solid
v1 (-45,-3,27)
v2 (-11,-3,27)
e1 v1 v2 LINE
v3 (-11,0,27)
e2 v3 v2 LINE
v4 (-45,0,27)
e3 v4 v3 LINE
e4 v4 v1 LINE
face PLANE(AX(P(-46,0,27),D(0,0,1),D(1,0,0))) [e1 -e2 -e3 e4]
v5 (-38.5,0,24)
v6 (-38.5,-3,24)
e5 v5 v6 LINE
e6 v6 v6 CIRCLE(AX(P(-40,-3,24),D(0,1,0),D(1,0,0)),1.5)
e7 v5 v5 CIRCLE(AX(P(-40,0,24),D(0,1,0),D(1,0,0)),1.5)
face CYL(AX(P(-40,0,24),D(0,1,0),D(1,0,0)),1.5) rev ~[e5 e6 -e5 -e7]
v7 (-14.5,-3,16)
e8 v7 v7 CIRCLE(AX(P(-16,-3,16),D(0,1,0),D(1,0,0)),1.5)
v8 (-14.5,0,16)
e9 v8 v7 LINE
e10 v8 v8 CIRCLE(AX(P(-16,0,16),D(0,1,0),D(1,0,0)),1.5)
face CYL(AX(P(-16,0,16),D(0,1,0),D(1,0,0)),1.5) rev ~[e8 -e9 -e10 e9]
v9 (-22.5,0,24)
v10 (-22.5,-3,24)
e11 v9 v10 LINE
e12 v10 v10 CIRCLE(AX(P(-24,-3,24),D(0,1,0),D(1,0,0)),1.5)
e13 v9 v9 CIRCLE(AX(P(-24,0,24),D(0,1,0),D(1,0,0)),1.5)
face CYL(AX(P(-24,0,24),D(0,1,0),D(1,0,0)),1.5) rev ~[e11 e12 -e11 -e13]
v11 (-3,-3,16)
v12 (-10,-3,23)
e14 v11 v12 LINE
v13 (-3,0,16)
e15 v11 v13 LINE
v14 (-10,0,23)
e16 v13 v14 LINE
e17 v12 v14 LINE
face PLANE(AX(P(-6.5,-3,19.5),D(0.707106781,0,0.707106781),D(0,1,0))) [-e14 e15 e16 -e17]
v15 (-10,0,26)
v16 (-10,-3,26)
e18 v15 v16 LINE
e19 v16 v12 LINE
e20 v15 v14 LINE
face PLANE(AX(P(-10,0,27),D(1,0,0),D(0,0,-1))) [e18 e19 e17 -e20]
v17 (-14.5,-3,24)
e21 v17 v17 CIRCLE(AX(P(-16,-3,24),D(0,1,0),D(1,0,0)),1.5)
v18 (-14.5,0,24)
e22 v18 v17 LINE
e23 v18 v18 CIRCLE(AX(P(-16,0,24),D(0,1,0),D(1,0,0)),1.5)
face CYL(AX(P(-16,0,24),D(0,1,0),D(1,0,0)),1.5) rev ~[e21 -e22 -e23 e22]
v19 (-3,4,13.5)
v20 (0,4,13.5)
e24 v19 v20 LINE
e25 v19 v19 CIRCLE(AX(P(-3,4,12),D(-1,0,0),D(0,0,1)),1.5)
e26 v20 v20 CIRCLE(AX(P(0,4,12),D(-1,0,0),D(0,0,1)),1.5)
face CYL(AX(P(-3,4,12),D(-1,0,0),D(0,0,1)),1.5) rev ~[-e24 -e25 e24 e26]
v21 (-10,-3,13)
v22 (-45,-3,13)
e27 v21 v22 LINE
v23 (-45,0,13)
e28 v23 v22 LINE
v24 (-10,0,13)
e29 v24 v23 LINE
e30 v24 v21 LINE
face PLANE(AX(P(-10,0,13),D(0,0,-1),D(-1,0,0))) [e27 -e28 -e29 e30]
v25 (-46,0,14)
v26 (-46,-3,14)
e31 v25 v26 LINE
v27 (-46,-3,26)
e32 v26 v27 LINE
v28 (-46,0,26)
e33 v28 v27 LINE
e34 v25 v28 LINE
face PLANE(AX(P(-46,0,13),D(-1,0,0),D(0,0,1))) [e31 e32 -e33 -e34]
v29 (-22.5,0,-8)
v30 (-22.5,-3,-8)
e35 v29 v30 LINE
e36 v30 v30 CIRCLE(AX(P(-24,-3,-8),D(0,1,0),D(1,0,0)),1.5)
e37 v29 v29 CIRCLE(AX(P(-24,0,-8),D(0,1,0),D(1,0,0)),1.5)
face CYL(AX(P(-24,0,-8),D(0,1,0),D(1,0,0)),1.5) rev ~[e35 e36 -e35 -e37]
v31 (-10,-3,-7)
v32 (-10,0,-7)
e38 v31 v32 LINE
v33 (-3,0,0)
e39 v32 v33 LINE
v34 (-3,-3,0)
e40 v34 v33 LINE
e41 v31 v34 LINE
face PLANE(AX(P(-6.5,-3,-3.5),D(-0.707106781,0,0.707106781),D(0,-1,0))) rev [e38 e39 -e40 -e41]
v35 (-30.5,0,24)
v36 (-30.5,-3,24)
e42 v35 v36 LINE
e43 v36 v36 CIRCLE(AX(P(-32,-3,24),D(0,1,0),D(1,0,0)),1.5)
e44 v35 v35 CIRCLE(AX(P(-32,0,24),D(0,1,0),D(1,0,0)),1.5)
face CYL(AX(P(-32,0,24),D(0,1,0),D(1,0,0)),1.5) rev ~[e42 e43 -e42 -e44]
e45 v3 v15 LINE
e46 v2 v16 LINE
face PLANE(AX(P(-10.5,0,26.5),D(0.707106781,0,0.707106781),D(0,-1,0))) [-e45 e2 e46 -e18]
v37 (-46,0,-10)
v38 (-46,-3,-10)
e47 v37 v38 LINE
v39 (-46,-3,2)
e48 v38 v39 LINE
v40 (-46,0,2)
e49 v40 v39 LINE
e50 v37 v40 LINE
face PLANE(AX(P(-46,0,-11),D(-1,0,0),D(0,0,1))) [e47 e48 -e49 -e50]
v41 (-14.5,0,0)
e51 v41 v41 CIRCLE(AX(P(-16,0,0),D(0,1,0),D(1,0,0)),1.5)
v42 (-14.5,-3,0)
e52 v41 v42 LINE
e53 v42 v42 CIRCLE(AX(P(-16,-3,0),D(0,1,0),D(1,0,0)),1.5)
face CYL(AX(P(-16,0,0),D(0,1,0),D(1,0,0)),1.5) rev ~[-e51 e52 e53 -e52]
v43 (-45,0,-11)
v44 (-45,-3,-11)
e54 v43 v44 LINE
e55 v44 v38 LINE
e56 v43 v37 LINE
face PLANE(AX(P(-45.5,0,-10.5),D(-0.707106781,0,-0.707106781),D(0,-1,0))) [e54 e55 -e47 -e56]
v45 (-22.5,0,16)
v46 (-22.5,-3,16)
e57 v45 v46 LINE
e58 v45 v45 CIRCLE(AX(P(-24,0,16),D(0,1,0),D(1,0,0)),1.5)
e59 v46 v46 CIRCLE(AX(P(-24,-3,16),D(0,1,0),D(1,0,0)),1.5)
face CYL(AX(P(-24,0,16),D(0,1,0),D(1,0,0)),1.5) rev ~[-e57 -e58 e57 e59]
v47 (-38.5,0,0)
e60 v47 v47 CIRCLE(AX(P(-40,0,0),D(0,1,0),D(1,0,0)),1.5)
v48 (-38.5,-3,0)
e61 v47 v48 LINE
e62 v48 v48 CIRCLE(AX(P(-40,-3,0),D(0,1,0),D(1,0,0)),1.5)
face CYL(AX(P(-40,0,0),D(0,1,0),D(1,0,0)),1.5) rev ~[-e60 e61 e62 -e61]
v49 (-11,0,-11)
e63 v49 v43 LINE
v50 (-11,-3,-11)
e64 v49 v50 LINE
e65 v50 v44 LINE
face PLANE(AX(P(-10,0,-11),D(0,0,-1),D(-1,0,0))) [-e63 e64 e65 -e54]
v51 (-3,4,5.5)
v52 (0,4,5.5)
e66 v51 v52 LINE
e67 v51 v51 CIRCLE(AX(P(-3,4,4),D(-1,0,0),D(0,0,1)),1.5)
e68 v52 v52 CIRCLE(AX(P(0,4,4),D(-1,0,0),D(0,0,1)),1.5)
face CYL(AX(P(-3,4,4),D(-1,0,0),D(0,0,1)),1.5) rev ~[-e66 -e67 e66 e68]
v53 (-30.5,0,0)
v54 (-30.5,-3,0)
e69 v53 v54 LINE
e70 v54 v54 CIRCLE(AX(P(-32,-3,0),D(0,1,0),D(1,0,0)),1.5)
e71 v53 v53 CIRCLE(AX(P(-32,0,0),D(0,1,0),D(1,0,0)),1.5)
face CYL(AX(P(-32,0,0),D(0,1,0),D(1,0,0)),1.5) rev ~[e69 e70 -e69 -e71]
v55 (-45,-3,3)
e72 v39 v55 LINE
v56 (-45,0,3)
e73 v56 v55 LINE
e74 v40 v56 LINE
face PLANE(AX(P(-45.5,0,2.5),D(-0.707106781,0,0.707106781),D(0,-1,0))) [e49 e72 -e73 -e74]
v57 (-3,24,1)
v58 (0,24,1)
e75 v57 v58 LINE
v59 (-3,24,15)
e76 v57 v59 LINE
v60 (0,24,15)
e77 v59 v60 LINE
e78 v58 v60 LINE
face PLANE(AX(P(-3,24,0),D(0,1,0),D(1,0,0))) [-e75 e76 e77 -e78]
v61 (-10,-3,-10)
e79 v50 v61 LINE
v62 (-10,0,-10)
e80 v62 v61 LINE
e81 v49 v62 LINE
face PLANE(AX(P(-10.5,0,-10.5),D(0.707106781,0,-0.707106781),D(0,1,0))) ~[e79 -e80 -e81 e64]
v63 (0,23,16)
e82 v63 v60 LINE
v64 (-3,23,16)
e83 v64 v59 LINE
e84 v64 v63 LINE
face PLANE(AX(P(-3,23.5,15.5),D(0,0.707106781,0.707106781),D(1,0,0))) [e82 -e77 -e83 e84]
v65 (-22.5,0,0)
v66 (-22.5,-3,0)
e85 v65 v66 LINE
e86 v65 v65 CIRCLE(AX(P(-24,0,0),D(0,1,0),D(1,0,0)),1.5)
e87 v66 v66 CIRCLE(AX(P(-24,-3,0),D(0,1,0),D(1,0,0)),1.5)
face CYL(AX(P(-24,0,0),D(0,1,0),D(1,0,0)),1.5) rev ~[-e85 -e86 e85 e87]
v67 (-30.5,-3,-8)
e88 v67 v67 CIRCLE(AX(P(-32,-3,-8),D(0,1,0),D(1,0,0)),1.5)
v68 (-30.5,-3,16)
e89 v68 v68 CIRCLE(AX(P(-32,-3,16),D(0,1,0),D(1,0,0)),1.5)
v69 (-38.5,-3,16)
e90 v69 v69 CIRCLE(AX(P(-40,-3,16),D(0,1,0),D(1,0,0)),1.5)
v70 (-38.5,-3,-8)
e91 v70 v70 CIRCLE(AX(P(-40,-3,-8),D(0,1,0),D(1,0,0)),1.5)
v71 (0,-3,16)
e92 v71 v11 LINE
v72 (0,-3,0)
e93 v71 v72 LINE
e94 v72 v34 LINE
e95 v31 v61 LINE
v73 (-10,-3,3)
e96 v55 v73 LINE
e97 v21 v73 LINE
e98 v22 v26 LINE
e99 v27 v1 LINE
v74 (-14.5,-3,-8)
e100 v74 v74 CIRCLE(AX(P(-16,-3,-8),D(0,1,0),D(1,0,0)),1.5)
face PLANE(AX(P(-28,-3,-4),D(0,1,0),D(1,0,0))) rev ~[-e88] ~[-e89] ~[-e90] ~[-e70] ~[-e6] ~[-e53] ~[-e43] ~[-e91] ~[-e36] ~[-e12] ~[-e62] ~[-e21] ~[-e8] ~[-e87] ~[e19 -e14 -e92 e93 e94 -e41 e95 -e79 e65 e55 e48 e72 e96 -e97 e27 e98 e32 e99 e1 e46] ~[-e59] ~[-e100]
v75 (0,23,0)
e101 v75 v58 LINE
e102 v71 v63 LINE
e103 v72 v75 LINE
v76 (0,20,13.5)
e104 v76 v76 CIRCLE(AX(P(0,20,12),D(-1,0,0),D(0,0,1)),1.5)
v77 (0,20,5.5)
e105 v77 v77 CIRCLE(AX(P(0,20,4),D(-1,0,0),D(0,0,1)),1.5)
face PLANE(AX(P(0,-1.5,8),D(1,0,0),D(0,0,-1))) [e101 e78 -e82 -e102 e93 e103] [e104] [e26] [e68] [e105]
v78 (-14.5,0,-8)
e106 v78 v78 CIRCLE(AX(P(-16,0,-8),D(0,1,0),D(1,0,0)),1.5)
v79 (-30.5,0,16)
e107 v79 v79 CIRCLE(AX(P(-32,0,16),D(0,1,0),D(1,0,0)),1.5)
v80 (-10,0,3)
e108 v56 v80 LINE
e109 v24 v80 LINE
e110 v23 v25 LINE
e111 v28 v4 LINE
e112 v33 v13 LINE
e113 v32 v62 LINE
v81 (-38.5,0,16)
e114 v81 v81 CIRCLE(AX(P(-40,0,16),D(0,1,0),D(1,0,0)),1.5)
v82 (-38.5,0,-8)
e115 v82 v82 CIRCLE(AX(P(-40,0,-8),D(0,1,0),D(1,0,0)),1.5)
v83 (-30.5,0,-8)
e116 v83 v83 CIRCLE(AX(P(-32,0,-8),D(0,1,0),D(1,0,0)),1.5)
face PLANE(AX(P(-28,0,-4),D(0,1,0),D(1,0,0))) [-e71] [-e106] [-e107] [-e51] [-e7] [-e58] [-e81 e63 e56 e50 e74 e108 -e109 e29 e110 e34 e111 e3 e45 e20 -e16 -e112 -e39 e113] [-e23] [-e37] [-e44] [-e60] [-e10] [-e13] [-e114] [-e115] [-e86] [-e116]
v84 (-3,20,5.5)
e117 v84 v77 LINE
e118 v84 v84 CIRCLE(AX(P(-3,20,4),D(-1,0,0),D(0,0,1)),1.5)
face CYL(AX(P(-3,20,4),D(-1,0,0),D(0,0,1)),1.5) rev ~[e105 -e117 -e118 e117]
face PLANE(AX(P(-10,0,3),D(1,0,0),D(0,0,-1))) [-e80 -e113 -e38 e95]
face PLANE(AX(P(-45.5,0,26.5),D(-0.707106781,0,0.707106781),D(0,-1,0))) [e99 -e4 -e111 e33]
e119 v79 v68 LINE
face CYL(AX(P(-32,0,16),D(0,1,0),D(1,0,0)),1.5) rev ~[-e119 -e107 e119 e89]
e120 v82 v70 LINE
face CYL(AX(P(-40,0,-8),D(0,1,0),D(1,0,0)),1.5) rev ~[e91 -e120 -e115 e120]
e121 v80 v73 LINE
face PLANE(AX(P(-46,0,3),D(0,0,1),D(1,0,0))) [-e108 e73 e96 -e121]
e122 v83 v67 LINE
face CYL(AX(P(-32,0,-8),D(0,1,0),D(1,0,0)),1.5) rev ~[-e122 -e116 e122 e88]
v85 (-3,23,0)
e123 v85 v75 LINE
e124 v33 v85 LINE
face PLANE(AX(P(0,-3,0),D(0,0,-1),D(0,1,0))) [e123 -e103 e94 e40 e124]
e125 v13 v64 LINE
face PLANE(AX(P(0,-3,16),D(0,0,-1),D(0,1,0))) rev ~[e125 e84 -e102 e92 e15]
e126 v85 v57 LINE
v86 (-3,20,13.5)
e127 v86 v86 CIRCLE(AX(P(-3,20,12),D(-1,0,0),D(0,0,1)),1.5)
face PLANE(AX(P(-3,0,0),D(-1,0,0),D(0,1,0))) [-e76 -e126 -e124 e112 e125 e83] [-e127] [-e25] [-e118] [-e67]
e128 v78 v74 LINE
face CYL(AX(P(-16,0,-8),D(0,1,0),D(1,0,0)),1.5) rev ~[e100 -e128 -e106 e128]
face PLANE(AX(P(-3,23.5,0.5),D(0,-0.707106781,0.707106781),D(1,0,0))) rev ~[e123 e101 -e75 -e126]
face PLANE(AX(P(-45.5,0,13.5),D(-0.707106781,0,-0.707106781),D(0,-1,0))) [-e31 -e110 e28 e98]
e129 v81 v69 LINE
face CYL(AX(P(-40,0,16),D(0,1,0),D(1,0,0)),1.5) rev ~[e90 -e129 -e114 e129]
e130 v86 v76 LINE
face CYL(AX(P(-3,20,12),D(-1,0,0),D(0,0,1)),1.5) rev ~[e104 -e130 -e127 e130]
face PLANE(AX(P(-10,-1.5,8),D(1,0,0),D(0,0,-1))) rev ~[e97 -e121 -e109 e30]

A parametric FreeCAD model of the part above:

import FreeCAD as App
import Part
import Sketcher


def edges_at(feature, points):
    """Names of the edges that pass closest to the given points."""
    edges = feature.Shape.Edges
    near = lambda p: min(range(len(edges)), key=lambda i: edges[i].distToShape(Part.Vertex(*p))[0])
    return sorted({f"Edge{near(p) + 1}" for p in points})


def add_polygon(sketch, points):
    """Adds a closed chain of lines whose ends are joined by coincident constraints."""
    first, n = sketch.GeometryCount, len(points)
    for a, b in zip(points, points[1:] + points[:1]):
        sketch.addGeometry(Part.LineSegment(App.Vector(*a, 0), App.Vector(*b, 0)), False)
    for i in range(n):
        sketch.addConstraint(Sketcher.Constraint("Coincident", first + i, 2, first + (i + 1) % n, 1))

doc = App.newDocument("Part")
params = doc.addObject("Spreadsheet::Sheet", "Params")
for row, (alias, value) in enumerate([
    ("sketch1_width", "3 mm"),
    ("sketch1_height", "24 mm"),
    ("pad1_length", "16 mm"),
    ("sketch2_diameter", "3 mm"),
    ("pocket1_length", "16 mm"),
    ("chamfer_size", "1 mm"),
    ("sketch3_width", "3 mm"),
    ("sketch3_height", "16 mm"),
    ("pad2_length", "10 mm"),
    ("sketch4_width", "36 mm"),
    ("sketch4_height", "14 mm"),
    ("pad3_length", "3 mm"),
    ("chamfer2_size", "1 mm"),
    ("sketch5_diameter", "3 mm"),
    ("pocket2_length", "10 mm"),
    ("chamfer3_size", "7 mm"),
], start=1):
    params.set(f"A{row}", alias)
    params.set(f"B{row}", "=" + value)
    params.setAlias(f"B{row}", alias)

body = doc.addObject("PartDesign::Body", "Body")

sketch1 = doc.addObject("Sketcher::SketchObject", "Sketch")
body.addObject(sketch1)
sketch1.AttachmentSupport = (doc.XY_Plane, [""])
sketch1.MapMode = "FlatFace"
add_polygon(sketch1, [(-3, 24), (-3, 0), (0, 0), (0, 24)])
sketch1.addConstraint(Sketcher.Constraint("Vertical", 0))
sketch1.addConstraint(Sketcher.Constraint("Horizontal", 1))
sketch1.addConstraint(Sketcher.Constraint("Vertical", 2))
sketch1.addConstraint(Sketcher.Constraint("Horizontal", 3))
sketch1.addConstraint(Sketcher.Constraint("Coincident", 1, 2, -1, 1))
sketch1.addConstraint(Sketcher.Constraint("DistanceX", 1, 1, 1, 2, 3.0))
sketch1.addConstraint(Sketcher.Constraint("DistanceY", 0, 2, 0, 1, 24.0))
sketch1.setExpression("Constraints[9]", "Params.sketch1_width")
sketch1.setExpression("Constraints[10]", "Params.sketch1_height")
pad1 = doc.addObject("PartDesign::Pad", "Pad")
body.addObject(pad1)
pad1.Profile = sketch1
pad1.setExpression("Length", "Params.pad1_length")

sketch2 = doc.addObject("Sketcher::SketchObject", "Sketch001")
body.addObject(sketch2)
sketch2.AttachmentSupport = (doc.YZ_Plane, [""])
sketch2.MapMode = "FlatFace"
sketch2.AttachmentOffset = App.Placement(App.Vector(0, 0, -3), App.Rotation())
sketch2.addGeometry(Part.Circle(App.Vector(4, 4, 0), App.Vector(0, 0, 1), 1.5), False)
sketch2.addGeometry(Part.Circle(App.Vector(4, 12, 0), App.Vector(0, 0, 1), 1.5), False)
sketch2.addGeometry(Part.Circle(App.Vector(20, 4, 0), App.Vector(0, 0, 1), 1.5), False)
sketch2.addGeometry(Part.Circle(App.Vector(20, 12, 0), App.Vector(0, 0, 1), 1.5), False)
sketch2.addConstraint(Sketcher.Constraint("Equal", 0, 1))
sketch2.addConstraint(Sketcher.Constraint("Equal", 1, 2))
sketch2.addConstraint(Sketcher.Constraint("Equal", 2, 3))
sketch2.addConstraint(Sketcher.Constraint("Horizontal", 0, 3, 2, 3))
sketch2.addConstraint(Sketcher.Constraint("Horizontal", 1, 3, 3, 3))
sketch2.addConstraint(Sketcher.Constraint("Vertical", 0, 3, 1, 3))
sketch2.addConstraint(Sketcher.Constraint("Vertical", 2, 3, 3, 3))
sketch2.addConstraint(Sketcher.Constraint("Diameter", 0, 3.0))
sketch2.addConstraint(Sketcher.Constraint("DistanceX", -1, 1, 0, 3, 4.0))
sketch2.addConstraint(Sketcher.Constraint("DistanceY", -1, 1, 0, 3, 4.0))
sketch2.addConstraint(Sketcher.Constraint("DistanceY", -1, 1, 1, 3, 12.0))
sketch2.addConstraint(Sketcher.Constraint("DistanceX", -1, 1, 2, 3, 20.0))
sketch2.setExpression("Constraints[7]", "Params.sketch2_diameter")
pocket1 = doc.addObject("PartDesign::Pocket", "Pocket")
body.addObject(pocket1)
pocket1.Profile = sketch2
pocket1.setExpression("Length", "Params.pocket1_length")
pocket1.Reversed = True
doc.recompute()

chamfer = doc.addObject("PartDesign::Chamfer", "Chamfer")
body.addObject(chamfer)
chamfer.Base = (pocket1, edges_at(pocket1, [(-1.5, 24, 0), (-1.5, 24, 16)]))
chamfer.setExpression("Size", "Params.chamfer_size")

sketch3 = doc.addObject("Sketcher::SketchObject", "Sketch002")
body.addObject(sketch3)
sketch3.AttachmentSupport = (doc.YZ_Plane, [""])
sketch3.MapMode = "FlatFace"
add_polygon(sketch3, [(0, 16), (-3, 16), (-3, 0), (0, 0)])
sketch3.addConstraint(Sketcher.Constraint("Horizontal", 0))
sketch3.addConstraint(Sketcher.Constraint("Vertical", 1))
sketch3.addConstraint(Sketcher.Constraint("Horizontal", 2))
sketch3.addConstraint(Sketcher.Constraint("Vertical", 3))
sketch3.addConstraint(Sketcher.Constraint("Coincident", 2, 2, -1, 1))
sketch3.addConstraint(Sketcher.Constraint("DistanceX", 0, 2, 0, 1, 3.0))
sketch3.addConstraint(Sketcher.Constraint("DistanceY", 1, 2, 1, 1, 16.0))
sketch3.setExpression("Constraints[9]", "Params.sketch3_width")
sketch3.setExpression("Constraints[10]", "Params.sketch3_height")
pad2 = doc.addObject("PartDesign::Pad", "Pad001")
body.addObject(pad2)
pad2.Profile = sketch3
pad2.setExpression("Length", "Params.pad2_length")
pad2.Reversed = True

sketch4 = doc.addObject("Sketcher::SketchObject", "Sketch003")
body.addObject(sketch4)
sketch4.AttachmentSupport = (doc.XZ_Plane, [""])
sketch4.MapMode = "FlatFace"
add_polygon(sketch4, [(-10, -11), (-46, -11), (-46, 3), (-10, 3)])
add_polygon(sketch4, [(-10, 13), (-46, 13), (-46, 27), (-10, 27)])
sketch4.addConstraint(Sketcher.Constraint("Horizontal", 0))
sketch4.addConstraint(Sketcher.Constraint("Vertical", 1))
sketch4.addConstraint(Sketcher.Constraint("Horizontal", 2))
sketch4.addConstraint(Sketcher.Constraint("Vertical", 3))
sketch4.addConstraint(Sketcher.Constraint("Horizontal", 4))
sketch4.addConstraint(Sketcher.Constraint("Vertical", 5))
sketch4.addConstraint(Sketcher.Constraint("Horizontal", 6))
sketch4.addConstraint(Sketcher.Constraint("Vertical", 7))
sketch4.addConstraint(Sketcher.Constraint("Vertical", 1, 2, 4, 2))
sketch4.addConstraint(Sketcher.Constraint("Vertical", 3, 2, 6, 2))
sketch4.addConstraint(Sketcher.Constraint("Equal", 3, 5))
sketch4.addConstraint(Sketcher.Constraint("DistanceX", 0, 2, 0, 1, 36.0))
sketch4.addConstraint(Sketcher.Constraint("DistanceY", 1, 1, 1, 2, 14.0))
sketch4.addConstraint(Sketcher.Constraint("DistanceX", 0, 2, -1, 1, 46.0))
sketch4.addConstraint(Sketcher.Constraint("DistanceY", 0, 2, -1, 1, 11.0))
sketch4.addConstraint(Sketcher.Constraint("DistanceY", -1, 1, 4, 2, 13.0))
sketch4.setExpression("Constraints[19]", "Params.sketch4_width")
sketch4.setExpression("Constraints[20]", "Params.sketch4_height")
pad3 = doc.addObject("PartDesign::Pad", "Pad002")
body.addObject(pad3)
pad3.Profile = sketch4
pad3.setExpression("Length", "Params.pad3_length")
doc.recompute()

chamfer2 = doc.addObject("PartDesign::Chamfer", "Chamfer001")
body.addObject(chamfer2)
chamfer2.Base = (pad3, edges_at(pad3, [
    (-46, -1.5, 3),
    (-46, -1.5, -11),
    (-10, -1.5, -11),
    (-46, -1.5, 27),
    (-10, -1.5, 27),
    (-46, -1.5, 13),
]))
chamfer2.setExpression("Size", "Params.chamfer2_size")

sketch5 = doc.addObject("Sketcher::SketchObject", "Sketch004")
body.addObject(sketch5)
sketch5.AttachmentSupport = (doc.XZ_Plane, [""])
sketch5.MapMode = "FlatFace"
sketch5.addGeometry(Part.Circle(App.Vector(-40, -8, 0), App.Vector(0, 0, 1), 1.5), False)
sketch5.addGeometry(Part.Circle(App.Vector(-32, -8, 0), App.Vector(0, 0, 1), 1.5), False)
sketch5.addGeometry(Part.Circle(App.Vector(-24, -8, 0), App.Vector(0, 0, 1), 1.5), False)
sketch5.addGeometry(Part.Circle(App.Vector(-16, -8, 0), App.Vector(0, 0, 1), 1.5), False)
sketch5.addGeometry(Part.Circle(App.Vector(-40, 0, 0), App.Vector(0, 0, 1), 1.5), False)
sketch5.addGeometry(Part.Circle(App.Vector(-32, 0, 0), App.Vector(0, 0, 1), 1.5), False)
sketch5.addGeometry(Part.Circle(App.Vector(-24, 0, 0), App.Vector(0, 0, 1), 1.5), False)
sketch5.addGeometry(Part.Circle(App.Vector(-16, 0, 0), App.Vector(0, 0, 1), 1.5), False)
sketch5.addGeometry(Part.Circle(App.Vector(-40, 16, 0), App.Vector(0, 0, 1), 1.5), False)
sketch5.addGeometry(Part.Circle(App.Vector(-40, 24, 0), App.Vector(0, 0, 1), 1.5), False)
sketch5.addGeometry(Part.Circle(App.Vector(-32, 16, 0), App.Vector(0, 0, 1), 1.5), False)
sketch5.addGeometry(Part.Circle(App.Vector(-32, 24, 0), App.Vector(0, 0, 1), 1.5), False)
sketch5.addGeometry(Part.Circle(App.Vector(-24, 16, 0), App.Vector(0, 0, 1), 1.5), False)
sketch5.addGeometry(Part.Circle(App.Vector(-24, 24, 0), App.Vector(0, 0, 1), 1.5), False)
sketch5.addGeometry(Part.Circle(App.Vector(-16, 16, 0), App.Vector(0, 0, 1), 1.5), False)
sketch5.addGeometry(Part.Circle(App.Vector(-16, 24, 0), App.Vector(0, 0, 1), 1.5), False)
sketch5.addConstraint(Sketcher.Constraint("Equal", 0, 1))
sketch5.addConstraint(Sketcher.Constraint("Equal", 1, 2))
sketch5.addConstraint(Sketcher.Constraint("Equal", 2, 3))
sketch5.addConstraint(Sketcher.Constraint("Equal", 3, 4))
sketch5.addConstraint(Sketcher.Constraint("Equal", 4, 5))
sketch5.addConstraint(Sketcher.Constraint("Equal", 5, 6))
sketch5.addConstraint(Sketcher.Constraint("Equal", 6, 7))
sketch5.addConstraint(Sketcher.Constraint("Equal", 7, 8))
sketch5.addConstraint(Sketcher.Constraint("Equal", 8, 9))
sketch5.addConstraint(Sketcher.Constraint("Equal", 9, 10))
sketch5.addConstraint(Sketcher.Constraint("Equal", 10, 11))
sketch5.addConstraint(Sketcher.Constraint("Equal", 11, 12))
sketch5.addConstraint(Sketcher.Constraint("Equal", 12, 13))
sketch5.addConstraint(Sketcher.Constraint("Equal", 13, 14))
sketch5.addConstraint(Sketcher.Constraint("Equal", 14, 15))
sketch5.addConstraint(Sketcher.Constraint("PointOnObject", 4, 3, -1))
sketch5.addConstraint(Sketcher.Constraint("PointOnObject", 5, 3, -1))
sketch5.addConstraint(Sketcher.Constraint("PointOnObject", 6, 3, -1))
sketch5.addConstraint(Sketcher.Constraint("PointOnObject", 7, 3, -1))
sketch5.addConstraint(Sketcher.Constraint("Horizontal", 0, 3, 1, 3))
sketch5.addConstraint(Sketcher.Constraint("Horizontal", 1, 3, 2, 3))
sketch5.addConstraint(Sketcher.Constraint("Horizontal", 2, 3, 3, 3))
sketch5.addConstraint(Sketcher.Constraint("Horizontal", 8, 3, 10, 3))
sketch5.addConstraint(Sketcher.Constraint("Horizontal", 9, 3, 11, 3))
sketch5.addConstraint(Sketcher.Constraint("Horizontal", 10, 3, 12, 3))
sketch5.addConstraint(Sketcher.Constraint("Horizontal", 11, 3, 13, 3))
sketch5.addConstraint(Sketcher.Constraint("Horizontal", 12, 3, 14, 3))
sketch5.addConstraint(Sketcher.Constraint("Horizontal", 13, 3, 15, 3))
sketch5.addConstraint(Sketcher.Constraint("Vertical", 0, 3, 4, 3))
sketch5.addConstraint(Sketcher.Constraint("Vertical", 1, 3, 5, 3))
sketch5.addConstraint(Sketcher.Constraint("Vertical", 2, 3, 6, 3))
sketch5.addConstraint(Sketcher.Constraint("Vertical", 3, 3, 7, 3))
sketch5.addConstraint(Sketcher.Constraint("Vertical", 4, 3, 8, 3))
sketch5.addConstraint(Sketcher.Constraint("Vertical", 8, 3, 9, 3))
sketch5.addConstraint(Sketcher.Constraint("Vertical", 5, 3, 10, 3))
sketch5.addConstraint(Sketcher.Constraint("Vertical", 10, 3, 11, 3))
sketch5.addConstraint(Sketcher.Constraint("Vertical", 6, 3, 12, 3))
sketch5.addConstraint(Sketcher.Constraint("Vertical", 12, 3, 13, 3))
sketch5.addConstraint(Sketcher.Constraint("Vertical", 7, 3, 14, 3))
sketch5.addConstraint(Sketcher.Constraint("Vertical", 14, 3, 15, 3))
sketch5.addConstraint(Sketcher.Constraint("Diameter", 0, 3.0))
sketch5.addConstraint(Sketcher.Constraint("DistanceX", 0, 3, -1, 1, 40.0))
sketch5.addConstraint(Sketcher.Constraint("DistanceY", 0, 3, -1, 1, 8.0))
sketch5.addConstraint(Sketcher.Constraint("DistanceX", 1, 3, -1, 1, 32.0))
sketch5.addConstraint(Sketcher.Constraint("DistanceX", 2, 3, -1, 1, 24.0))
sketch5.addConstraint(Sketcher.Constraint("DistanceX", 3, 3, -1, 1, 16.0))
sketch5.addConstraint(Sketcher.Constraint("DistanceY", -1, 1, 8, 3, 16.0))
sketch5.addConstraint(Sketcher.Constraint("DistanceY", -1, 1, 9, 3, 24.0))
sketch5.setExpression("Constraints[40]", "Params.sketch5_diameter")
pocket2 = doc.addObject("PartDesign::Pocket", "Pocket001")
body.addObject(pocket2)
pocket2.Profile = sketch5
pocket2.setExpression("Length", "Params.pocket2_length")
pocket2.Reversed = True
doc.recompute()

chamfer3 = doc.addObject("PartDesign::Chamfer", "Chamfer002")
body.addObject(chamfer3)
chamfer3.Base = (pocket2, edges_at(pocket2, [(-10, -1.5, 16), (-10, -1.5, 0)]))
chamfer3.setExpression("Size", "Params.chamfer3_size")

doc.recompute()
